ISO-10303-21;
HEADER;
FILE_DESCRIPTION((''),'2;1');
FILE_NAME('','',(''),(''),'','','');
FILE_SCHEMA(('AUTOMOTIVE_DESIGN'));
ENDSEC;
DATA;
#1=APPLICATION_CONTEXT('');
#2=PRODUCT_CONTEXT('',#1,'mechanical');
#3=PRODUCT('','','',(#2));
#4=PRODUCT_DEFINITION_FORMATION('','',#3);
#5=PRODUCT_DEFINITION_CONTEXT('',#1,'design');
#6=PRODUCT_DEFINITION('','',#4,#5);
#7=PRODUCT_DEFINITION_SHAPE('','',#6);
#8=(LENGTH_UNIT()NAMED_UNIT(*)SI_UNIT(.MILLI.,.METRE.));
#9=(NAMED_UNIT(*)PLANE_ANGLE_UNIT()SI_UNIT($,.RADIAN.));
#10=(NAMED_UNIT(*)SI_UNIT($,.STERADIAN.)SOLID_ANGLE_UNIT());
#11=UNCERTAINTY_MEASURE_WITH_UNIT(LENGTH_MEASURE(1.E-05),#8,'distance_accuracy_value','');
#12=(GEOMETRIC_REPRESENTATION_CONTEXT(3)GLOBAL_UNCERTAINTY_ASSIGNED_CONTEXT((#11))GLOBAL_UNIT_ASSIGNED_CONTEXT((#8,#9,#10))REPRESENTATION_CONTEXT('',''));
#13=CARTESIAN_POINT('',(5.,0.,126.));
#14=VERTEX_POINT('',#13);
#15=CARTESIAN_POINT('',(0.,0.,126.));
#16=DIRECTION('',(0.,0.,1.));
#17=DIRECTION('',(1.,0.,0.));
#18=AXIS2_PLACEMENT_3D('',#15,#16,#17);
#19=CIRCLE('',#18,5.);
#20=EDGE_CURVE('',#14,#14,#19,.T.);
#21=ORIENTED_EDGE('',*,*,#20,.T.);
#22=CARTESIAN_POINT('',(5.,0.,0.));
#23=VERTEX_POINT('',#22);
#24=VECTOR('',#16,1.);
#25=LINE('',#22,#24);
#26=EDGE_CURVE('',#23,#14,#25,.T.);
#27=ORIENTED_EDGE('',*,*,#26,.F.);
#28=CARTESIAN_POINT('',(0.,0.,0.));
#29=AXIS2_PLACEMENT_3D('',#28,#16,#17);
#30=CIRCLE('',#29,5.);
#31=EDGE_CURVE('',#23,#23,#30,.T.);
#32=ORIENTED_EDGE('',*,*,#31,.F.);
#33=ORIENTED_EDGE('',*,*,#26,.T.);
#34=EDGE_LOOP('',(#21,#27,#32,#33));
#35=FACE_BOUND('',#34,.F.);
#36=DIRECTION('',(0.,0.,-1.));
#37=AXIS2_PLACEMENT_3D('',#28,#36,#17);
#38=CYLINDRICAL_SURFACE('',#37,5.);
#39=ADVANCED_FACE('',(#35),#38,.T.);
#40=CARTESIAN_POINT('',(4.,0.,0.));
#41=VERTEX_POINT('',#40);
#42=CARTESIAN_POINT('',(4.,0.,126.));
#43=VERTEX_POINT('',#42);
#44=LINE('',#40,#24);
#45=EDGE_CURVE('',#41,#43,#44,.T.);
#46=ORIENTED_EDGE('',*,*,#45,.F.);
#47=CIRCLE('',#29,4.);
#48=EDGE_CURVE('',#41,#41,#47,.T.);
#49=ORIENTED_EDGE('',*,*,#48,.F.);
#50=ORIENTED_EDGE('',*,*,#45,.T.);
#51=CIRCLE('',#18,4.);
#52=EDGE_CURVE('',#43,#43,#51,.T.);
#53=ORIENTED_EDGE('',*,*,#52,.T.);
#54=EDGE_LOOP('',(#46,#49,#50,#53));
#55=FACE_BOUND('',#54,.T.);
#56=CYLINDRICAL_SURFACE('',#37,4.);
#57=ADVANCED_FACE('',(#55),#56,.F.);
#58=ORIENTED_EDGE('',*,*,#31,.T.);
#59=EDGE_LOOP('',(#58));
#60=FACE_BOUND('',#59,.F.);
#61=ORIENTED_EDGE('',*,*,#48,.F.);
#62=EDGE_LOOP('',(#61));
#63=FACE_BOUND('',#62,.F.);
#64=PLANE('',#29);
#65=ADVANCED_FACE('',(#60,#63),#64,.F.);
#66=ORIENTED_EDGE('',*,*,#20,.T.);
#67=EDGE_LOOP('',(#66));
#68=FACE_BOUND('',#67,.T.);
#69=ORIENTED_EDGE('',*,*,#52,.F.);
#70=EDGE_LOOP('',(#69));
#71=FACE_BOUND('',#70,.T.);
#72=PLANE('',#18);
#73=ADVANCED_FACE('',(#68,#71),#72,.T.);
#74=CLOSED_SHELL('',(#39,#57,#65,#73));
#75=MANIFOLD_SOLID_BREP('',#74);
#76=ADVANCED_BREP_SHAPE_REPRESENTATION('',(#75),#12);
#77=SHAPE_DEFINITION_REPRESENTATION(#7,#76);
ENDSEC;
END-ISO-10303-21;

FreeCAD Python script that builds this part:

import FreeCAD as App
import Part
import Sketcher

V = App.Vector
Q = App.Units.Quantity

doc = App.newDocument("Part")
body = doc.addObject("PartDesign::Body", "Body")

sketch1 = body.newObject("Sketcher::SketchObject", "Sketch")
sketch1.AttachmentSupport = (doc.getObject("XY_Plane"), [""])
sketch1.MapMode = "FlatFace"
sketch1.addGeometry(Part.Circle(V(0, 0, 0), V(0, 0, 1), 5), False)
sketch1.addGeometry(Part.Circle(V(0, 0, 0), V(0, 0, 1), 4), False)
sketch1.addConstraint(Sketcher.Constraint("Coincident", 0, 3, -1, 1))
sketch1.addConstraint(Sketcher.Constraint("Coincident", 1, 3, -1, 1))
sketch1.addConstraint(Sketcher.Constraint("Diameter", 0, Q("10 mm")))
sketch1.addConstraint(Sketcher.Constraint("Diameter", 1, Q("8 mm")))
pad1 = body.newObject("PartDesign::Pad", "Pad")
pad1.Profile = sketch1
pad1.Length = 126

doc.recompute()
